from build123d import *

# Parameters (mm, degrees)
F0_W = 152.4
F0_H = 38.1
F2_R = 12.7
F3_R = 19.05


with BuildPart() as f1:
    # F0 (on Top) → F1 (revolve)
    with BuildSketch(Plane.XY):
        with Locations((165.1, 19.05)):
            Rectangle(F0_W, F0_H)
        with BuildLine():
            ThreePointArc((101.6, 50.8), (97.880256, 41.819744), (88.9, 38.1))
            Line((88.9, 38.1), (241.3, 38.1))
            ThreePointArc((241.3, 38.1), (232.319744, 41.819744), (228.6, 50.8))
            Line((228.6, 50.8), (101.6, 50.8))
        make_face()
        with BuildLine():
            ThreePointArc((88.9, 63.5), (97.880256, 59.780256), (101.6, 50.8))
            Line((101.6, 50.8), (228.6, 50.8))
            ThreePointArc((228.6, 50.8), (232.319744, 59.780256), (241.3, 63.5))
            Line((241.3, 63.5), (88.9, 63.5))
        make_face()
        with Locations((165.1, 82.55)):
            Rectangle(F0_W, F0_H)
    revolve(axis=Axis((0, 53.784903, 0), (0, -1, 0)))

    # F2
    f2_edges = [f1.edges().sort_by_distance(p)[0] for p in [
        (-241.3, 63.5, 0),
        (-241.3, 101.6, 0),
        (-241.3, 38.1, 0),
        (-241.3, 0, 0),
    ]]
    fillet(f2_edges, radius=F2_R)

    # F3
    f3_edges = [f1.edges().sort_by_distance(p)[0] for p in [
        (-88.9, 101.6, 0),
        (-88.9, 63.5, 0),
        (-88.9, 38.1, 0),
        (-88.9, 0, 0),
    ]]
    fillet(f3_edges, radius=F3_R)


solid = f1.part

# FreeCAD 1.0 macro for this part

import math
import FreeCAD as App
import Part
import Sketcher
from FreeCAD import Vector
Q = App.Units.Quantity


def edges_at(feature, points):
    """Names of the edges that pass closest to the given points."""
    edges = feature.Shape.Edges
    near = lambda p: min(range(len(edges)), key=lambda i: edges[i].distToShape(Part.Vertex(*p))[0])
    return sorted({f"Edge{near(p) + 1}" for p in points})

doc = App.newDocument("Part")
body = doc.addObject("PartDesign::Body", "Body")

sketch1 = doc.addObject("Sketcher::SketchObject", "Sketch")
body.addObject(sketch1)
sketch1.AttachmentSupport = (doc.XY_Plane, [""])
sketch1.MapMode = "FlatFace"
sketch1.addGeometry(Part.LineSegment(Vector(89, 38, 0), Vector(89, 0, 0)), False)
sketch1.addGeometry(Part.LineSegment(Vector(89, 0, 0), Vector(241, 0, 0)), False)
sketch1.addGeometry(Part.LineSegment(Vector(241, 0, 0), Vector(241, 38, 0)), False)
sketch1.addGeometry(Part.ArcOfCircle(Part.Circle(Vector(241, 51, 0), Vector(0, 0, 1), 13), math.radians(-180), math.radians(-90)), False)
sketch1.addGeometry(Part.ArcOfCircle(Part.Circle(Vector(241, 51, 0), Vector(0, 0, 1), 13), math.radians(90), math.radians(180)), False)
sketch1.addGeometry(Part.LineSegment(Vector(241, 64, 0), Vector(241, 102, 0)), False)
sketch1.addGeometry(Part.LineSegment(Vector(241, 102, 0), Vector(89, 102, 0)), False)
sketch1.addGeometry(Part.LineSegment(Vector(89, 102, 0), Vector(89, 64, 0)), False)
sketch1.addGeometry(Part.ArcOfCircle(Part.Circle(Vector(89, 51, 0), Vector(0, 0, 1), 13), math.radians(0), math.radians(90)), False)
sketch1.addGeometry(Part.ArcOfCircle(Part.Circle(Vector(89, 51, 0), Vector(0, 0, 1), 13), math.radians(-90), math.radians(0)), False)
sketch1.addConstraint(Sketcher.Constraint("Coincident", 0, 2, 1, 1))
sketch1.addConstraint(Sketcher.Constraint("Coincident", 1, 2, 2, 1))
sketch1.addConstraint(Sketcher.Constraint("Coincident", 2, 2, 3, 2))
sketch1.addConstraint(Sketcher.Constraint("Tangent", 3, 1, 4, 2))
sketch1.addConstraint(Sketcher.Constraint("Coincident", 4, 1, 5, 1))
sketch1.addConstraint(Sketcher.Constraint("Coincident", 5, 2, 6, 1))
sketch1.addConstraint(Sketcher.Constraint("Coincident", 6, 2, 7, 1))
sketch1.addConstraint(Sketcher.Constraint("Coincident", 7, 2, 8, 2))
sketch1.addConstraint(Sketcher.Constraint("Tangent", 8, 1, 9, 2))
sketch1.addConstraint(Sketcher.Constraint("Coincident", 9, 1, 0, 1))
sketch1.addConstraint(Sketcher.Constraint("Vertical", 0))
sketch1.addConstraint(Sketcher.Constraint("Horizontal", 1))
sketch1.addConstraint(Sketcher.Constraint("Vertical", 2))
sketch1.addConstraint(Sketcher.Constraint("Vertical", 5))
sketch1.addConstraint(Sketcher.Constraint("Horizontal", 6))
sketch1.addConstraint(Sketcher.Constraint("Vertical", 7))
sketch1.addConstraint(Sketcher.Constraint("Equal", 3, 4))
sketch1.addConstraint(Sketcher.Constraint("Equal", 4, 8))
sketch1.addConstraint(Sketcher.Constraint("Equal", 8, 9))
sketch1.addConstraint(Sketcher.Constraint("PointOnObject", 0, 2, -1))
sketch1.addConstraint(Sketcher.Constraint("Horizontal", 4, 3, 8, 3))
sketch1.addConstraint(Sketcher.Constraint("Horizontal", 9, 3, 3, 1))
sketch1.addConstraint(Sketcher.Constraint("Horizontal", 3, 1, 8, 1))
sketch1.addConstraint(Sketcher.Constraint("Vertical", 9, 3, 0, 2))
sketch1.addConstraint(Sketcher.Constraint("Vertical", 4, 3, 1, 2))
sketch1.addConstraint(Sketcher.Constraint("Vertical", 2, 2, 4, 1))
sketch1.addConstraint(Sketcher.Constraint("Vertical", 0, 2, 6, 2))
sketch1.addConstraint(Sketcher.Constraint("Equal", 2, 5))
sketch1.addConstraint(Sketcher.Constraint("Radius", 3, Q("0.5 in")))
sketch1.addConstraint(Sketcher.Constraint("DistanceX", 1, 1, 1, 2, Q("6 in")))
sketch1.addConstraint(Sketcher.Constraint("DistanceY", 0, 2, 0, 1, Q("1.5 in")))
sketch1.addConstraint(Sketcher.Constraint("DistanceX", -1, 1, 3, 1, Q("9 in")))
revolution = doc.addObject("PartDesign::Revolution", "Revolution")
body.addObject(revolution)
revolution.Profile = sketch1
revolution.ReferenceAxis = (sketch1, ["V_Axis"])
revolution.Angle = 360
doc.recompute()

fillet = doc.addObject("PartDesign::Fillet", "Fillet")
body.addObject(fillet)
fillet.Base = (revolution, edges_at(revolution, [
    (-241.3, 63.5, 0),
    (-241.3, 101.6, 0),
    (-241.3, 38.1, 0),
    (-241.3, 0, 0),
]))
fillet.Radius = Q("0.5 in")
doc.recompute()

fillet2 = doc.addObject("PartDesign::Fillet", "Fillet001")
body.addObject(fillet2)
fillet2.Base = (fillet, edges_at(fillet, [
    (-88.9, 101.6, 0),
    (-88.9, 63.5, 0),
    (-88.9, 38.1, 0),
    (-88.9, 0, 0),
]))
fillet2.Radius = Q("0.75 in")

doc.recompute()
